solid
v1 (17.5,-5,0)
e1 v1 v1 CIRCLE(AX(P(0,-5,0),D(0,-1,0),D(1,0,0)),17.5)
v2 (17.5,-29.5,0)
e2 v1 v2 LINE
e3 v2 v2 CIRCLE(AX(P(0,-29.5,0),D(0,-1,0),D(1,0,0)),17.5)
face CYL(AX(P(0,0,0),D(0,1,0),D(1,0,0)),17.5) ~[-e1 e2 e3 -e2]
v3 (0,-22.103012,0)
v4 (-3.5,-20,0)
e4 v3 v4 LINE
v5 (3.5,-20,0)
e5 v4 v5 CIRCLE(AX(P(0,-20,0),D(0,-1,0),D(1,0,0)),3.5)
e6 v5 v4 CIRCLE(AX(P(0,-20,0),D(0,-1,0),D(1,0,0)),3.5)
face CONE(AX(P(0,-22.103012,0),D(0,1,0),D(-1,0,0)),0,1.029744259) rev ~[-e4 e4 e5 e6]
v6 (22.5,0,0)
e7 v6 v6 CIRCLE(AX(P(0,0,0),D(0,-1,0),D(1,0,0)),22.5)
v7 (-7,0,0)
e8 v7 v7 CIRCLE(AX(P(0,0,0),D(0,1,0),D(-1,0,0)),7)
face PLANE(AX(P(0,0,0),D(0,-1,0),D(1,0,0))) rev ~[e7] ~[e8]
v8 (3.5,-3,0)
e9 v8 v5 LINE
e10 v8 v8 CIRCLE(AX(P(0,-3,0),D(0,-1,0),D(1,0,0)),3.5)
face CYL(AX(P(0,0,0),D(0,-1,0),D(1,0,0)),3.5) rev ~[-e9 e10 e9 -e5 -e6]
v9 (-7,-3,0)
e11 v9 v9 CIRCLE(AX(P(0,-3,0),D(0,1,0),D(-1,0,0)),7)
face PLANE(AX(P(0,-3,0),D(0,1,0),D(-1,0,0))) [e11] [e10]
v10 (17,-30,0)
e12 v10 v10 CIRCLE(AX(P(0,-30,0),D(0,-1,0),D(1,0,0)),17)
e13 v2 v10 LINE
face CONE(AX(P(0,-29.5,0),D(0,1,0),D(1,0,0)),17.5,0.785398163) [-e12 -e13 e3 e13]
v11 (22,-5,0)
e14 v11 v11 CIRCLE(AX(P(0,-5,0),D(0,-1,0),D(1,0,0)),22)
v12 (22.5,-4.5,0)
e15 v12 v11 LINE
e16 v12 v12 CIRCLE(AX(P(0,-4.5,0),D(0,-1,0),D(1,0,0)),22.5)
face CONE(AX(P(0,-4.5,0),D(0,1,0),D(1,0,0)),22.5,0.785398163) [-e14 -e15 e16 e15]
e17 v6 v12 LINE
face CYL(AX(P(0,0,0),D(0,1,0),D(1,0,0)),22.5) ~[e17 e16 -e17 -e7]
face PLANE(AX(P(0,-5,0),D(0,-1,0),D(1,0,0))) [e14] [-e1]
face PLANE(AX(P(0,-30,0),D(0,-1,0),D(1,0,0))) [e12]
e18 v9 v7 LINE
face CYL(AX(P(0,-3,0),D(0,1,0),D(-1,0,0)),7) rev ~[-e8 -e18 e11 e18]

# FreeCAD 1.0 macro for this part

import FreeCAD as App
import Part
import Sketcher
from FreeCAD import Vector
Q = App.Units.Quantity


def edges_at(feature, points):
    """Names of the edges that pass closest to the given points."""
    edges = feature.Shape.Edges
    near = lambda p: min(range(len(edges)), key=lambda i: edges[i].distToShape(Part.Vertex(*p))[0])
    return sorted({f"Edge{near(p) + 1}" for p in points})

doc = App.newDocument("Part")
body = doc.addObject("PartDesign::Body", "Body")

# Sketch on XZ plane
sketch1 = body.newObject("Sketcher::SketchObject", "Sketch")
sketch1.AttachmentSupport = (doc.getObject("XZ_Plane"), [""])
sketch1.MapMode = "FlatFace"
sketch1.addGeometry(Part.Circle(Vector(0, 0, 0), Vector(0, 0, 1), 18), False)
sketch1.addConstraint(Sketcher.Constraint("Coincident", 0, 3, -1, 1))
sketch1.addConstraint(Sketcher.Constraint("Diameter", 0, Q("35 mm")))
pad1 = body.newObject("PartDesign::Pad", "Pad")
pad1.Profile = sketch1
pad1.Length = 30

# Sketch on XZ plane
sketch2 = body.newObject("Sketcher::SketchObject", "Sketch001")
sketch2.AttachmentSupport = (doc.getObject("XZ_Plane"), [""])
sketch2.MapMode = "FlatFace"
sketch2.addGeometry(Part.Circle(Vector(0, 0, 0), Vector(0, 0, 1), 22), False)
sketch2.addGeometry(Part.Circle(Vector(0, 0, 0), Vector(0, 0, 1), 18), False)
sketch2.addConstraint(Sketcher.Constraint("Coincident", 0, 3, -1, 1))
sketch2.addConstraint(Sketcher.Constraint("Coincident", 1, 3, -1, 1))
sketch2.addConstraint(Sketcher.Constraint("Diameter", 0, Q("45 mm")))
sketch2.addConstraint(Sketcher.Constraint("Diameter", 1, Q("35 mm")))
pad2 = body.newObject("PartDesign::Pad", "Pad001")
pad2.Profile = sketch2
pad2.Length = 5

# Sketch on XZ plane
sketch3 = body.newObject("Sketcher::SketchObject", "Sketch002")
sketch3.AttachmentSupport = (doc.getObject("XZ_Plane"), [""])
sketch3.MapMode = "FlatFace"
sketch3.addGeometry(Part.Circle(Vector(0, 0, 0), Vector(0, 0, 1), 3.5), False)
sketch3.addConstraint(Sketcher.Constraint("Coincident", 0, 3, -1, 1))
sketch3.addConstraint(Sketcher.Constraint("Diameter", 0, Q("7 mm")))
doc.recompute()
hole = body.newObject("PartDesign::Hole", "Hole")
hole.Profile = sketch3
hole.ThreadType = "None"
hole.Diameter = 7
hole.DepthType = "Dimension"
hole.Depth = 20
hole.DrillPoint = "Angled"
hole.DrillPointAngle = 118
hole.HoleCutType = "Counterbore"
hole.HoleCutDiameter = 14
hole.HoleCutDepth = 3
hole.Reversed = True
doc.recompute()

chamfer = body.newObject("PartDesign::Chamfer", "Chamfer")
chamfer.Base = (hole, edges_at(hole, [(-17.5, -30, 0), (-22.5, -5, 0)]))
chamfer.Size = 0.5

doc.recompute()
